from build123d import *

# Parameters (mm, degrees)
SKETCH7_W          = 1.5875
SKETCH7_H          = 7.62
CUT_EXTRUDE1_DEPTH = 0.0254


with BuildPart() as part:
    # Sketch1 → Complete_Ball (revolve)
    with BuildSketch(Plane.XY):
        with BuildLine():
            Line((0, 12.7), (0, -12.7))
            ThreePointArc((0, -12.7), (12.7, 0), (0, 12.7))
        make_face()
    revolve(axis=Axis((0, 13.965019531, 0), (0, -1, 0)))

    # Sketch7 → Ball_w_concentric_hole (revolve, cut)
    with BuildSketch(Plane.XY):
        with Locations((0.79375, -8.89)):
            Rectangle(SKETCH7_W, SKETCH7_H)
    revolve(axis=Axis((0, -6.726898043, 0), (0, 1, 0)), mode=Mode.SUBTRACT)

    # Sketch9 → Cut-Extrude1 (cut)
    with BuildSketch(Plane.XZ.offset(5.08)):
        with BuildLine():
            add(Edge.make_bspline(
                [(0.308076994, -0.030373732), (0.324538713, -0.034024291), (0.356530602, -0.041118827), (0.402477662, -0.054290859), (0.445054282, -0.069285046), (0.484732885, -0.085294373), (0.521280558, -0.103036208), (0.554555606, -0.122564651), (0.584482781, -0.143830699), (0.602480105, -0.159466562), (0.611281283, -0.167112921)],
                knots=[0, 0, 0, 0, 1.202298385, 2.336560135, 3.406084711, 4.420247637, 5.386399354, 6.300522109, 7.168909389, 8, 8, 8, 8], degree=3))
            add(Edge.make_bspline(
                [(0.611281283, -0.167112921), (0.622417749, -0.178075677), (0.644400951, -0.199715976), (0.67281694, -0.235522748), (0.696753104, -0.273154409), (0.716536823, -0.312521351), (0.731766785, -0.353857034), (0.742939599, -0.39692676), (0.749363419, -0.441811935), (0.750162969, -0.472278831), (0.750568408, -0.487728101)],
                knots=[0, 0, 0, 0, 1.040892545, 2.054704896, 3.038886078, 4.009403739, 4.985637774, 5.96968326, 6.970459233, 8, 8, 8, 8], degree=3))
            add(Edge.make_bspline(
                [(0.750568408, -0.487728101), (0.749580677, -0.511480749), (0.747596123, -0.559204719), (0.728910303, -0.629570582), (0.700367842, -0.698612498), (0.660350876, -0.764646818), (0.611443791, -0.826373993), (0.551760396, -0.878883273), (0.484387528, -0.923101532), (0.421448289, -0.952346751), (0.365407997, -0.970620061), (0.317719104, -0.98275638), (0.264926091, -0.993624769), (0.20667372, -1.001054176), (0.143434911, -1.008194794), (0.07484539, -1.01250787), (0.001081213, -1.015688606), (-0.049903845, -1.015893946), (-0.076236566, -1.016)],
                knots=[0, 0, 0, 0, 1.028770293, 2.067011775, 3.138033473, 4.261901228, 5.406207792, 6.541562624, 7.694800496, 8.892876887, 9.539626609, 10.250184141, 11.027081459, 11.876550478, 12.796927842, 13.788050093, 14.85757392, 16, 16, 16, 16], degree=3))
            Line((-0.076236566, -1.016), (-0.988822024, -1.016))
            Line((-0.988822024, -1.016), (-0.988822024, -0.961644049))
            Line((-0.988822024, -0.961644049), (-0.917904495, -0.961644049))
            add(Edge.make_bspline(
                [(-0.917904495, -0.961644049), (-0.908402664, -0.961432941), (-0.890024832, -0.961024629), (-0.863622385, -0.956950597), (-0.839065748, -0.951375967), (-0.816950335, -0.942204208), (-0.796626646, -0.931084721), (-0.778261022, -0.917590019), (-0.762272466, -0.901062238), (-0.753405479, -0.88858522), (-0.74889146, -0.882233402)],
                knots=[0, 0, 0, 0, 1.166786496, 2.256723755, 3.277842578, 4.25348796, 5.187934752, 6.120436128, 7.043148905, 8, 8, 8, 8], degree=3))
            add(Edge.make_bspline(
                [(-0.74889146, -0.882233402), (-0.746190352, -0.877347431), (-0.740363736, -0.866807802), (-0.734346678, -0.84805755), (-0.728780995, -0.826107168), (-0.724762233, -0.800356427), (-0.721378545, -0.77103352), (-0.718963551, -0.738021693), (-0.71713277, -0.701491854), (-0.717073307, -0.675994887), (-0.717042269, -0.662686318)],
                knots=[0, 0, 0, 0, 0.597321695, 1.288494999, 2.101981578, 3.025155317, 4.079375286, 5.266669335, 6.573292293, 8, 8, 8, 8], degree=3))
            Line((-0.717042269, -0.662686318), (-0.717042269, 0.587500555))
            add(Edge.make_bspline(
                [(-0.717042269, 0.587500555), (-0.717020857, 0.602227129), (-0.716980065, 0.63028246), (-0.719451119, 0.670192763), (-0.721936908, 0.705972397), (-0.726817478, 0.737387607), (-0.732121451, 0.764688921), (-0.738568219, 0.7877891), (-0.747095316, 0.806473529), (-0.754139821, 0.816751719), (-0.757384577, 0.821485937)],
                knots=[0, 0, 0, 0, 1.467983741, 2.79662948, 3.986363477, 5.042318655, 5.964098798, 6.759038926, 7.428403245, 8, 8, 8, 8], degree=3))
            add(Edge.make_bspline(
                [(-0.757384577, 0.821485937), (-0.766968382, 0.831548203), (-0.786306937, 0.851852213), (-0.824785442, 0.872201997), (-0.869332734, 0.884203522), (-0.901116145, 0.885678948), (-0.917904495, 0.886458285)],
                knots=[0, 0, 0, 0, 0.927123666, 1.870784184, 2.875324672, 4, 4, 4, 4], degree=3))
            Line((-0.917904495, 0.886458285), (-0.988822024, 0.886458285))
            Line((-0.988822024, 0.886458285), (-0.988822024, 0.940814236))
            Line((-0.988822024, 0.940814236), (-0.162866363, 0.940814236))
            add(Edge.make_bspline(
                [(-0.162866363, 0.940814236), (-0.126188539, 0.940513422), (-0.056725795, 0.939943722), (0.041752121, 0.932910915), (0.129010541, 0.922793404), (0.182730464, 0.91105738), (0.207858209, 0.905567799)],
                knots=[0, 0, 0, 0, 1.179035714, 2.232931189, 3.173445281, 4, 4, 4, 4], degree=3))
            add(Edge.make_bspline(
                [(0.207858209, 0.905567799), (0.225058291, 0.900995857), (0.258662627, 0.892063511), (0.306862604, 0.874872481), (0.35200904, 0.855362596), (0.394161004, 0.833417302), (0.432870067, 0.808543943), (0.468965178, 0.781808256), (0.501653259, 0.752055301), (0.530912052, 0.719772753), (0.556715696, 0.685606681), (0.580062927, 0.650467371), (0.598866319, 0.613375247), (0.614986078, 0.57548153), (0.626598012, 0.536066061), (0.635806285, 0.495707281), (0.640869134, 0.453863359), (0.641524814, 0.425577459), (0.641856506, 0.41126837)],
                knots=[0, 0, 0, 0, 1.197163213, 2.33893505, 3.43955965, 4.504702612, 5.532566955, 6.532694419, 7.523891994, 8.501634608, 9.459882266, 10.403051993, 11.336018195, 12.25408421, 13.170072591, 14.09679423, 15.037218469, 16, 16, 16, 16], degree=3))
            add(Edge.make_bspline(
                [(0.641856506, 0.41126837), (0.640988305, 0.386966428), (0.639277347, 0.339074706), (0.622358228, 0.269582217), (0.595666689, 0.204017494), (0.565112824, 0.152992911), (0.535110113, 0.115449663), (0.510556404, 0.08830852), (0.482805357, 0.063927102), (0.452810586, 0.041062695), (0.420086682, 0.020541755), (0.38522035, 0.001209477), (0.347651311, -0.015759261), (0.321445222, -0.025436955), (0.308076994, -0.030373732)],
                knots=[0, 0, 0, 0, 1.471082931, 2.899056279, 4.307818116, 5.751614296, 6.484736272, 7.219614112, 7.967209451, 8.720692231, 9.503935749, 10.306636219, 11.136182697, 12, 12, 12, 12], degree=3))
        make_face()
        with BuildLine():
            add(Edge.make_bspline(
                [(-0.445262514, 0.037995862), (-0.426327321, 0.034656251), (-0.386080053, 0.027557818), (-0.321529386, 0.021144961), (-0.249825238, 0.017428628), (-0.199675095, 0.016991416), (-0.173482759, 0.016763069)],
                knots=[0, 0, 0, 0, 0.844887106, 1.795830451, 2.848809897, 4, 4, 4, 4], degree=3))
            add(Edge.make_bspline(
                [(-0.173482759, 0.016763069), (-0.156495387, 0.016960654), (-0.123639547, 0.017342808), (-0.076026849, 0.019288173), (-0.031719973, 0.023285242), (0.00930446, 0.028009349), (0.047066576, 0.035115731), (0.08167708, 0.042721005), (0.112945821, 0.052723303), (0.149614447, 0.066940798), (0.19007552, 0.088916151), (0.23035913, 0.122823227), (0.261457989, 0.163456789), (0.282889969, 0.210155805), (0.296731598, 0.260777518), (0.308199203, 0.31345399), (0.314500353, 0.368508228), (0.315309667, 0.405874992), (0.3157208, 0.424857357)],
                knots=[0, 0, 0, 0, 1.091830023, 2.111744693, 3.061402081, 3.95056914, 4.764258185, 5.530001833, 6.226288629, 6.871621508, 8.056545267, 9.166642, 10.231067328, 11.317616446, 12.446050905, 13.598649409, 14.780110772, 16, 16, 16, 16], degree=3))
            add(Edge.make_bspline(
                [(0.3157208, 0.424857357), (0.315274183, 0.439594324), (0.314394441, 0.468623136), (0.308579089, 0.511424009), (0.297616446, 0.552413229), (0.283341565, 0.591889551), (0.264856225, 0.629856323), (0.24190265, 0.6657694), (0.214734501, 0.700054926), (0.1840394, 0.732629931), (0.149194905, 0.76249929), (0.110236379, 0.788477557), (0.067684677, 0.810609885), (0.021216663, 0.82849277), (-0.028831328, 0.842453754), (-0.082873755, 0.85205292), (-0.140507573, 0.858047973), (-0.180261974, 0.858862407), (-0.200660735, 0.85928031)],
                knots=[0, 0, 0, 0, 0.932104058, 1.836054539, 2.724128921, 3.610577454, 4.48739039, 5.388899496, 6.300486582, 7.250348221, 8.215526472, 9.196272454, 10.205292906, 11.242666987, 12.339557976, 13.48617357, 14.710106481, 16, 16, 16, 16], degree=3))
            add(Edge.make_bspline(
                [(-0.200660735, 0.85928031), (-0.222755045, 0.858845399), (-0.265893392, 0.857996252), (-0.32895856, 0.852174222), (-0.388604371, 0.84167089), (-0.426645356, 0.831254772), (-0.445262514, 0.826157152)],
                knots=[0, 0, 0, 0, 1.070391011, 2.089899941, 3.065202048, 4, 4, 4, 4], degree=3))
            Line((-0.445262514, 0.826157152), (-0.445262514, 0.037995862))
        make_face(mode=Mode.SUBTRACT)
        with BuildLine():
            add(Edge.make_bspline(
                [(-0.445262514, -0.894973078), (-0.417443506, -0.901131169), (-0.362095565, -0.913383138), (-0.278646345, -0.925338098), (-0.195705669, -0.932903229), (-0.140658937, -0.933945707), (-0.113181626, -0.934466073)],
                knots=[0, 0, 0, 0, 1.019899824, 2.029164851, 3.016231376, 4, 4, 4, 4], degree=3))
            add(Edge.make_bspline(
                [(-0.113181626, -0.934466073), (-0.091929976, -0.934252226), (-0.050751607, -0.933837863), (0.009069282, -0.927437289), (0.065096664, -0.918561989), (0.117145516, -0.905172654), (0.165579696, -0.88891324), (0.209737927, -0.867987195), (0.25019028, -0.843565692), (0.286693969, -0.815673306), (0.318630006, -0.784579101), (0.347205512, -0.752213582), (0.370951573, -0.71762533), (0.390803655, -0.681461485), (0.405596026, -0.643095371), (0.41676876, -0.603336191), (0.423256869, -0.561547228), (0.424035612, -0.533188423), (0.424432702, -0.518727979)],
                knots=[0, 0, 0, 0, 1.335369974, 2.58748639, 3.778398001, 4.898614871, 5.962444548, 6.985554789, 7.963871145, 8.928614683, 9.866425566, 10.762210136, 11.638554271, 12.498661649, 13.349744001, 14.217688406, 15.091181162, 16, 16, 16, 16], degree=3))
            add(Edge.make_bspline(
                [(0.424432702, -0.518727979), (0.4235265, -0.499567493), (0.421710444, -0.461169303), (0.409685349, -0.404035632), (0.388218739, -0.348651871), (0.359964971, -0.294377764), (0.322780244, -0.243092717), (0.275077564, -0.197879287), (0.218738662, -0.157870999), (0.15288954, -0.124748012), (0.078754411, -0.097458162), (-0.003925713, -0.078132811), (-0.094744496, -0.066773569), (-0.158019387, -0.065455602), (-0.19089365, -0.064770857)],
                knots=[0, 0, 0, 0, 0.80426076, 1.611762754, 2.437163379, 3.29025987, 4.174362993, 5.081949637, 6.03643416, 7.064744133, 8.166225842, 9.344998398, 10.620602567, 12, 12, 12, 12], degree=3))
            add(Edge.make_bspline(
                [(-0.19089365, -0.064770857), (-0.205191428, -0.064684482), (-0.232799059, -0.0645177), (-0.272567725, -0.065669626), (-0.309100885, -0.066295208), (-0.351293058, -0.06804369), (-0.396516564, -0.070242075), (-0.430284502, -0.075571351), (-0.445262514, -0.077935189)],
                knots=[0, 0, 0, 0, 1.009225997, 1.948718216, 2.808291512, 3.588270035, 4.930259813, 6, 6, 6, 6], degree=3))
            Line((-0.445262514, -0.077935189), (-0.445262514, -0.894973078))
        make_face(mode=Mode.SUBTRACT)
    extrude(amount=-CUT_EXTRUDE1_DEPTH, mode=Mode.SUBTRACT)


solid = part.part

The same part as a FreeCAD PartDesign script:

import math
import FreeCAD as App
import Part
import Sketcher
from FreeCAD import Vector
Q = App.Units.Quantity

doc = App.newDocument("Part")
params = doc.addObject("Spreadsheet::Sheet", "Params")
for row, (alias, value) in enumerate([
    ("sketch1_radius", "0.5 in"),
    ("revolution_angle", "360 deg"),
    ("sketch2_height", "0.3 in"),
    ("sketch2_width", "0.0625 in"),
    ("groove_angle", "360 deg"),
    ("pocket1_length", "0.001 in"),
], start=1):
    params.set(f"A{row}", alias)
    params.set(f"B{row}", "=" + value)
    params.setAlias(f"B{row}", alias)

body = doc.addObject("PartDesign::Body", "Body")

sketch1 = doc.addObject("Sketcher::SketchObject", "Sketch")
body.addObject(sketch1)
sketch1.AttachmentSupport = (doc.XY_Plane, [""])
sketch1.MapMode = "FlatFace"
sketch1.addGeometry([
    Part.LineSegment(Vector(0, 13, 0), Vector(0, -13, 0)),
    Part.ArcOfCircle(Part.Circle(Vector(0, 0, 0), Vector(0, 0, 1), 13), math.radians(-90), math.radians(90)),
], False)
sketch1.addConstraint([
    Sketcher.Constraint("Coincident", 0, 1, 1, 2),
    Sketcher.Constraint("Coincident", 1, 1, 0, 2),
    Sketcher.Constraint("Vertical", 0),
    Sketcher.Constraint("Coincident", 1, 3, -1, 1),
    Sketcher.Constraint("PointOnObject", 0, 1, -2),
    Sketcher.Constraint("Radius", 1, Q("0.5 in")),
])
sketch1.setExpression("Constraints[5]", "Params.sketch1_radius")
revolution = doc.addObject("PartDesign::Revolution", "Revolution")
body.addObject(revolution)
revolution.Profile = sketch1
revolution.ReferenceAxis = (sketch1, ["V_Axis"])
revolution.setExpression("Angle", "Params.revolution_angle")

sketch2 = doc.addObject("Sketcher::SketchObject", "Sketch001")
body.addObject(sketch2)
sketch2.AttachmentSupport = (doc.XY_Plane, [""])
sketch2.MapMode = "FlatFace"
sketch2.addGeometry([
    Part.LineSegment(Vector(0, -5.1, 0), Vector(0, -12.7, 0)),
    Part.LineSegment(Vector(0, -12.7, 0), Vector(1.6, -12.7, 0)),
    Part.LineSegment(Vector(1.6, -12.7, 0), Vector(1.6, -5.1, 0)),
    Part.LineSegment(Vector(1.6, -5.1, 0), Vector(0, -5.1, 0)),
], False)
sketch2.addConstraint([
    Sketcher.Constraint("Coincident", 0, 2, 1, 1),
    Sketcher.Constraint("Coincident", 1, 2, 2, 1),
    Sketcher.Constraint("Coincident", 2, 2, 3, 1),
    Sketcher.Constraint("Coincident", 3, 2, 0, 1),
    Sketcher.Constraint("Vertical", 0),
    Sketcher.Constraint("Horizontal", 1),
    Sketcher.Constraint("Vertical", 2),
    Sketcher.Constraint("Horizontal", 3),
    Sketcher.Constraint("PointOnObject", 0, 2, -2),
    Sketcher.Constraint("DistanceY", 0, 2, 0, 1, Q("0.3 in")),
    Sketcher.Constraint("DistanceY", 0, 2, -1, 1, Q("0.5 in")),
    Sketcher.Constraint("DistanceX", 1, 1, 1, 2, Q("0.0625 in")),
])
sketch2.setExpression("Constraints[9]", "Params.sketch2_height")
sketch2.setExpression("Constraints[11]", "Params.sketch2_width")
groove = doc.addObject("PartDesign::Groove", "Groove")
body.addObject(groove)
groove.Profile = sketch2
groove.ReferenceAxis = (sketch2, ["V_Axis"])
groove.setExpression("Angle", "Params.groove_angle")

sketch3 = doc.addObject("Sketcher::SketchObject", "Sketch002")
body.addObject(sketch3)
sketch3.AttachmentSupport = (doc.XZ_Plane, [""])
sketch3.MapMode = "FlatFace"
sketch3.AttachmentOffset = App.Placement(Vector(0, 0, 0.2 * 25.4), App.Rotation())
sketch3.addGeometry([
    Part.BSplineCurve([Vector(0.308077, -0.030374, 0), Vector(0.324539, -0.034024, 0), Vector(0.356531, -0.041119, 0), Vector(0.402478, -0.054291, 0), Vector(0.445054, -0.069285, 0), Vector(0.484733, -0.085294, 0), Vector(0.521281, -0.103036, 0), Vector(0.554556, -0.122565, 0), Vector(0.584483, -0.143831, 0), Vector(0.60248, -0.159467, 0), Vector(0.611281, -0.167113, 0)], [4, 1, 1, 1, 1, 1, 1, 1, 4], [0, 1.202298385, 2.336560135, 3.406084711, 4.420247637, 5.386399354, 6.300522109, 7.168909389, 8], False, 3, [1, 1, 1, 1, 1, 1, 1, 1, 1, 1, 1], False),
    Part.BSplineCurve([Vector(0.641857, 0.411268, 0), Vector(0.640988, 0.386966, 0), Vector(0.639277, 0.339075, 0), Vector(0.622358, 0.269582, 0), Vector(0.595667, 0.204017, 0), Vector(0.565113, 0.152993, 0), Vector(0.53511, 0.11545, 0), Vector(0.510556, 0.088309, 0), Vector(0.482805, 0.063927, 0), Vector(0.452811, 0.041063, 0), Vector(0.420087, 0.020542, 0), Vector(0.38522, 0.001209, 0), Vector(0.347651, -0.015759, 0), Vector(0.321445, -0.025437, 0), Vector(0.308077, -0.030374, 0)], [4, 1, 1, 1, 1, 1, 1, 1, 1, 1, 1, 1, 4], [0, 1.471082931, 2.899056279, 4.307818116, 5.751614296, 6.484736272, 7.219614112, 7.967209451, 8.720692231, 9.503935749, 10.306636219, 11.136182697, 12], False, 3, [1, 1, 1, 1, 1, 1, 1, 1, 1, 1, 1, 1, 1, 1, 1], False),
    Part.BSplineCurve([Vector(0.207858, 0.905568, 0), Vector(0.225058, 0.900996, 0), Vector(0.258663, 0.892064, 0), Vector(0.306863, 0.874872, 0), Vector(0.352009, 0.855363, 0), Vector(0.394161, 0.833417, 0), Vector(0.43287, 0.808544, 0), Vector(0.468965, 0.781808, 0), Vector(0.501653, 0.752055, 0), Vector(0.530912, 0.719773, 0), Vector(0.556716, 0.685607, 0), Vector(0.580063, 0.650467, 0), Vector(0.598866, 0.613375, 0), Vector(0.614986, 0.575482, 0), Vector(0.626598, 0.536066, 0), Vector(0.635806, 0.495707, 0), Vector(0.640869, 0.453863, 0), Vector(0.641525, 0.425577, 0), Vector(0.641857, 0.411268, 0)], [4, 1, 1, 1, 1, 1, 1, 1, 1, 1, 1, 1, 1, 1, 1, 1, 4], [0, 1.197163213, 2.33893505, 3.43955965, 4.504702612, 5.532566955, 6.532694419, 7.523891994, 8.501634608, 9.459882266, 10.403051993, 11.336018195, 12.25408421, 13.170072591, 14.09679423, 15.037218469, 16], False, 3, [1, 1, 1, 1, 1, 1, 1, 1, 1, 1, 1, 1, 1, 1, 1, 1, 1, 1, 1], False),
    Part.BSplineCurve([Vector(-0.162866, 0.940814, 0), Vector(-0.126189, 0.940513, 0), Vector(-0.056726, 0.939944, 0), Vector(0.041752, 0.932911, 0), Vector(0.129011, 0.922793, 0), Vector(0.18273, 0.911057, 0), Vector(0.207858, 0.905568, 0)], [4, 1, 1, 1, 4], [0, 1.179035714, 2.232931189, 3.173445281, 4], False, 3, [1, 1, 1, 1, 1, 1, 1], False),
    Part.LineSegment(Vector(-0.162866, 0.940814, 0), Vector(-0.988822, 0.940814, 0)),
    Part.LineSegment(Vector(-0.988822, 0.940814, 0), Vector(-0.988822, 0.886458, 0)),
    Part.LineSegment(Vector(-0.988822, 0.886458, 0), Vector(-0.917904, 0.886458, 0)),
    Part.BSplineCurve([Vector(-0.757385, 0.821486, 0), Vector(-0.766968, 0.831548, 0), Vector(-0.786307, 0.851852, 0), Vector(-0.824785, 0.872202, 0), Vector(-0.869333, 0.884204, 0), Vector(-0.901116, 0.885679, 0), Vector(-0.917904, 0.886458, 0)], [4, 1, 1, 1, 4], [0, 0.927123666, 1.870784184, 2.875324672, 4], False, 3, [1, 1, 1, 1, 1, 1, 1], False),
    Part.BSplineCurve([Vector(-0.717042, 0.587501, 0), Vector(-0.717021, 0.602227, 0), Vector(-0.71698, 0.630282, 0), Vector(-0.719451, 0.670193, 0), Vector(-0.721937, 0.705972, 0), Vector(-0.726817, 0.737388, 0), Vector(-0.732121, 0.764689, 0), Vector(-0.738568, 0.787789, 0), Vector(-0.747095, 0.806474, 0), Vector(-0.75414, 0.816752, 0), Vector(-0.757385, 0.821486, 0)], [4, 1, 1, 1, 1, 1, 1, 1, 4], [0, 1.467983741, 2.79662948, 3.986363477, 5.042318655, 5.964098798, 6.759038926, 7.428403245, 8], False, 3, [1, 1, 1, 1, 1, 1, 1, 1, 1, 1, 1], False),
    Part.LineSegment(Vector(-0.717042, 0.587501, 0), Vector(-0.717042, -0.662686, 0)),
    Part.BSplineCurve([Vector(-0.748891, -0.882233, 0), Vector(-0.74619, -0.877347, 0), Vector(-0.740364, -0.866808, 0), Vector(-0.734347, -0.848058, 0), Vector(-0.728781, -0.826107, 0), Vector(-0.724762, -0.800356, 0), Vector(-0.721379, -0.771034, 0), Vector(-0.718964, -0.738022, 0), Vector(-0.717133, -0.701492, 0), Vector(-0.717073, -0.675995, 0), Vector(-0.717042, -0.662686, 0)], [4, 1, 1, 1, 1, 1, 1, 1, 4], [0, 0.597321695, 1.288494999, 2.101981578, 3.025155317, 4.079375286, 5.266669335, 6.573292293, 8], False, 3, [1, 1, 1, 1, 1, 1, 1, 1, 1, 1, 1], False),
    Part.BSplineCurve([Vector(-0.917904, -0.961644, 0), Vector(-0.908403, -0.961433, 0), Vector(-0.890025, -0.961025, 0), Vector(-0.863622, -0.956951, 0), Vector(-0.839066, -0.951376, 0), Vector(-0.81695, -0.942204, 0), Vector(-0.796627, -0.931085, 0), Vector(-0.778261, -0.91759, 0), Vector(-0.762272, -0.901062, 0), Vector(-0.753405, -0.888585, 0), Vector(-0.748891, -0.882233, 0)], [4, 1, 1, 1, 1, 1, 1, 1, 4], [0, 1.166786496, 2.256723755, 3.277842578, 4.25348796, 5.187934752, 6.120436128, 7.043148905, 8], False, 3, [1, 1, 1, 1, 1, 1, 1, 1, 1, 1, 1], False),
    Part.LineSegment(Vector(-0.917904, -0.961644, 0), Vector(-0.988822, -0.961644, 0)),
    Part.LineSegment(Vector(-0.988822, -0.961644, 0), Vector(-0.988822, -1.016, 0)),
    Part.LineSegment(Vector(-0.988822, -1.016, 0), Vector(-0.076237, -1.016, 0)),
    Part.BSplineCurve([Vector(0.750568, -0.487728, 0), Vector(0.749581, -0.511481, 0), Vector(0.747596, -0.559205, 0), Vector(0.72891, -0.629571, 0), Vector(0.700368, -0.698612, 0), Vector(0.660351, -0.764647, 0), Vector(0.611444, -0.826374, 0), Vector(0.55176, -0.878883, 0), Vector(0.484388, -0.923102, 0), Vector(0.421448, -0.952347, 0), Vector(0.365408, -0.97062, 0), Vector(0.317719, -0.982756, 0), Vector(0.264926, -0.993625, 0), Vector(0.206674, -1.001054, 0), Vector(0.143435, -1.008195, 0), Vector(0.074845, -1.012508, 0), Vector(0.001081, -1.015689, 0), Vector(-0.049904, -1.015894, 0), Vector(-0.076237, -1.016, 0)], [4, 1, 1, 1, 1, 1, 1, 1, 1, 1, 1, 1, 1, 1, 1, 1, 4], [0, 1.028770293, 2.067011775, 3.138033473, 4.261901228, 5.406207792, 6.541562624, 7.694800496, 8.892876887, 9.539626609, 10.250184141, 11.027081459, 11.876550478, 12.796927842, 13.788050093, 14.85757392, 16], False, 3, [1, 1, 1, 1, 1, 1, 1, 1, 1, 1, 1, 1, 1, 1, 1, 1, 1, 1, 1], False),
    Part.BSplineCurve([Vector(0.611281, -0.167113, 0), Vector(0.622418, -0.178076, 0), Vector(0.644401, -0.199716, 0), Vector(0.672817, -0.235523, 0), Vector(0.696753, -0.273154, 0), Vector(0.716537, -0.312521, 0), Vector(0.731767, -0.353857, 0), Vector(0.74294, -0.396927, 0), Vector(0.749363, -0.441812, 0), Vector(0.750163, -0.472279, 0), Vector(0.750568, -0.487728, 0)], [4, 1, 1, 1, 1, 1, 1, 1, 4], [0, 1.040892545, 2.054704896, 3.038886078, 4.009403739, 4.985637774, 5.96968326, 6.970459233, 8], False, 3, [1, 1, 1, 1, 1, 1, 1, 1, 1, 1, 1], False),
    Part.LineSegment(Vector(-0.445263, -0.894973, 0), Vector(-0.445263, -0.077935, 0)),
    Part.BSplineCurve([Vector(-0.190894, -0.064771, 0), Vector(-0.205191, -0.064684, 0), Vector(-0.232799, -0.064518, 0), Vector(-0.272568, -0.06567, 0), Vector(-0.309101, -0.066295, 0), Vector(-0.351293, -0.068044, 0), Vector(-0.396517, -0.070242, 0), Vector(-0.430285, -0.075571, 0), Vector(-0.445263, -0.077935, 0)], [4, 1, 1, 1, 1, 1, 4], [0, 1.009225997, 1.948718216, 2.808291512, 3.588270035, 4.930259813, 6], False, 3, [1, 1, 1, 1, 1, 1, 1, 1, 1], False),
    Part.BSplineCurve([Vector(0.424433, -0.518728, 0), Vector(0.423526, -0.499567, 0), Vector(0.42171, -0.461169, 0), Vector(0.409685, -0.404036, 0), Vector(0.388219, -0.348652, 0), Vector(0.359965, -0.294378, 0), Vector(0.32278, -0.243093, 0), Vector(0.275078, -0.197879, 0), Vector(0.218739, -0.157871, 0), Vector(0.15289, -0.124748, 0), Vector(0.078754, -0.097458, 0), Vector(-0.003926, -0.078133, 0), Vector(-0.094744, -0.066774, 0), Vector(-0.158019, -0.065456, 0), Vector(-0.190894, -0.064771, 0)], [4, 1, 1, 1, 1, 1, 1, 1, 1, 1, 1, 1, 4], [0, 0.80426076, 1.611762754, 2.437163379, 3.29025987, 4.174362993, 5.081949637, 6.03643416, 7.064744133, 8.166225842, 9.344998398, 10.620602567, 12], False, 3, [1, 1, 1, 1, 1, 1, 1, 1, 1, 1, 1, 1, 1, 1, 1], False),
    Part.BSplineCurve([Vector(-0.113182, -0.934466, 0), Vector(-0.09193, -0.934252, 0), Vector(-0.050752, -0.933838, 0), Vector(0.009069, -0.927437, 0), Vector(0.065097, -0.918562, 0), Vector(0.117146, -0.905173, 0), Vector(0.16558, -0.888913, 0), Vector(0.209738, -0.867987, 0), Vector(0.25019, -0.843566, 0), Vector(0.286694, -0.815673, 0), Vector(0.31863, -0.784579, 0), Vector(0.347206, -0.752214, 0), Vector(0.370952, -0.717625, 0), Vector(0.390804, -0.681461, 0), Vector(0.405596, -0.643095, 0), Vector(0.416769, -0.603336, 0), Vector(0.423257, -0.561547, 0), Vector(0.424036, -0.533188, 0), Vector(0.424433, -0.518728, 0)], [4, 1, 1, 1, 1, 1, 1, 1, 1, 1, 1, 1, 1, 1, 1, 1, 4], [0, 1.335369974, 2.58748639, 3.778398001, 4.898614871, 5.962444548, 6.985554789, 7.963871145, 8.928614683, 9.866425566, 10.762210136, 11.638554271, 12.498661649, 13.349744001, 14.217688406, 15.091181162, 16], False, 3, [1, 1, 1, 1, 1, 1, 1, 1, 1, 1, 1, 1, 1, 1, 1, 1, 1, 1, 1], False),
    Part.BSplineCurve([Vector(-0.445263, -0.894973, 0), Vector(-0.417444, -0.901131, 0), Vector(-0.362096, -0.913383, 0), Vector(-0.278646, -0.925338, 0), Vector(-0.195706, -0.932903, 0), Vector(-0.140659, -0.933946, 0), Vector(-0.113182, -0.934466, 0)], [4, 1, 1, 1, 4], [0, 1.019899824, 2.029164851, 3.016231376, 4], False, 3, [1, 1, 1, 1, 1, 1, 1], False),
    Part.LineSegment(Vector(-0.445263, 0.037996, 0), Vector(-0.445263, 0.826157, 0)),
    Part.BSplineCurve([Vector(-0.200661, 0.85928, 0), Vector(-0.222755, 0.858845, 0), Vector(-0.265893, 0.857996, 0), Vector(-0.328959, 0.852174, 0), Vector(-0.388604, 0.841671, 0), Vector(-0.426645, 0.831255, 0), Vector(-0.445263, 0.826157, 0)], [4, 1, 1, 1, 4], [0, 1.070391011, 2.089899941, 3.065202048, 4], False, 3, [1, 1, 1, 1, 1, 1, 1], False),
    Part.BSplineCurve([Vector(0.315721, 0.424857, 0), Vector(0.315274, 0.439594, 0), Vector(0.314394, 0.468623, 0), Vector(0.308579, 0.511424, 0), Vector(0.297616, 0.552413, 0), Vector(0.283342, 0.59189, 0), Vector(0.264856, 0.629856, 0), Vector(0.241903, 0.665769, 0), Vector(0.214735, 0.700055, 0), Vector(0.184039, 0.73263, 0), Vector(0.149195, 0.762499, 0), Vector(0.110236, 0.788478, 0), Vector(0.067685, 0.81061, 0), Vector(0.021217, 0.828493, 0), Vector(-0.028831, 0.842454, 0), Vector(-0.082874, 0.852053, 0), Vector(-0.140508, 0.858048, 0), Vector(-0.180262, 0.858862, 0), Vector(-0.200661, 0.85928, 0)], [4, 1, 1, 1, 1, 1, 1, 1, 1, 1, 1, 1, 1, 1, 1, 1, 4], [0, 0.932104058, 1.836054539, 2.724128921, 3.610577454, 4.48739039, 5.388899496, 6.300486582, 7.250348221, 8.215526472, 9.196272454, 10.205292906, 11.242666987, 12.339557976, 13.48617357, 14.710106481, 16], False, 3, [1, 1, 1, 1, 1, 1, 1, 1, 1, 1, 1, 1, 1, 1, 1, 1, 1, 1, 1], False),
    Part.BSplineCurve([Vector(-0.173483, 0.016763, 0), Vector(-0.156495, 0.016961, 0), Vector(-0.12364, 0.017343, 0), Vector(-0.076027, 0.019288, 0), Vector(-0.03172, 0.023285, 0), Vector(0.009304, 0.028009, 0), Vector(0.047067, 0.035116, 0), Vector(0.081677, 0.042721, 0), Vector(0.112946, 0.052723, 0), Vector(0.149614, 0.066941, 0), Vector(0.190076, 0.088916, 0), Vector(0.230359, 0.122823, 0), Vector(0.261458, 0.163457, 0), Vector(0.28289, 0.210156, 0), Vector(0.296732, 0.260778, 0), Vector(0.308199, 0.313454, 0), Vector(0.3145, 0.368508, 0), Vector(0.31531, 0.405875, 0), Vector(0.315721, 0.424857, 0)], [4, 1, 1, 1, 1, 1, 1, 1, 1, 1, 1, 1, 1, 1, 1, 1, 4], [0, 1.091830023, 2.111744693, 3.061402081, 3.95056914, 4.764258185, 5.530001833, 6.226288629, 6.871621508, 8.056545267, 9.166642, 10.231067328, 11.317616446, 12.446050905, 13.598649409, 14.780110772, 16], False, 3, [1, 1, 1, 1, 1, 1, 1, 1, 1, 1, 1, 1, 1, 1, 1, 1, 1, 1, 1], False),
    Part.BSplineCurve([Vector(-0.445263, 0.037996, 0), Vector(-0.426327, 0.034656, 0), Vector(-0.38608, 0.027558, 0), Vector(-0.321529, 0.021145, 0), Vector(-0.249825, 0.017429, 0), Vector(-0.199675, 0.016991, 0), Vector(-0.173483, 0.016763, 0)], [4, 1, 1, 1, 4], [0, 0.844887106, 1.795830451, 2.848809897, 4], False, 3, [1, 1, 1, 1, 1, 1, 1], False),
], False)
sketch3.addConstraint([
    Sketcher.Constraint("Block", 0),
    Sketcher.Constraint("Block", 1),
    Sketcher.Constraint("Block", 2),
    Sketcher.Constraint("Block", 3),
    Sketcher.Constraint("Block", 7),
    Sketcher.Constraint("Block", 8),
    Sketcher.Constraint("Block", 10),
    Sketcher.Constraint("Block", 11),
    Sketcher.Constraint("Block", 15),
    Sketcher.Constraint("Block", 16),
    Sketcher.Constraint("Block", 18),
    Sketcher.Constraint("Block", 19),
    Sketcher.Constraint("Block", 20),
    Sketcher.Constraint("Block", 21),
    Sketcher.Constraint("Block", 23),
    Sketcher.Constraint("Block", 24),
    Sketcher.Constraint("Block", 25),
    Sketcher.Constraint("Block", 26),
    Sketcher.Constraint("Coincident", 3, 1, 4, 1),
    Sketcher.Constraint("Coincident", 4, 2, 5, 1),
    Sketcher.Constraint("Coincident", 5, 2, 6, 1),
    Sketcher.Constraint("Coincident", 6, 2, 7, 2),
    Sketcher.Constraint("Coincident", 8, 1, 9, 1),
    Sketcher.Constraint("Coincident", 9, 2, 10, 2),
    Sketcher.Constraint("Coincident", 11, 1, 12, 1),
    Sketcher.Constraint("Coincident", 12, 2, 13, 1),
    Sketcher.Constraint("Coincident", 13, 2, 14, 1),
    Sketcher.Constraint("Coincident", 14, 2, 15, 2),
    Sketcher.Constraint("Coincident", 17, 2, 18, 2),
    Sketcher.Constraint("Coincident", 21, 1, 17, 1),
    Sketcher.Constraint("Coincident", 22, 2, 23, 2),
    Sketcher.Constraint("Coincident", 26, 1, 22, 1),
    Sketcher.Constraint("Horizontal", 4),
    Sketcher.Constraint("Vertical", 5),
    Sketcher.Constraint("Horizontal", 6),
    Sketcher.Constraint("Horizontal", 12),
    Sketcher.Constraint("Vertical", 13),
    Sketcher.Constraint("Horizontal", 14),
    Sketcher.Constraint("Vertical", 5, 2, 12, 2),
    Sketcher.Constraint("DistanceX", 5, 2, 9, 2, Q("0.0107 in")),
])
pocket1 = doc.addObject("PartDesign::Pocket", "Pocket")
body.addObject(pocket1)
pocket1.Profile = sketch3
pocket1.setExpression("Length", "Params.pocket1_length")

doc.recompute()
